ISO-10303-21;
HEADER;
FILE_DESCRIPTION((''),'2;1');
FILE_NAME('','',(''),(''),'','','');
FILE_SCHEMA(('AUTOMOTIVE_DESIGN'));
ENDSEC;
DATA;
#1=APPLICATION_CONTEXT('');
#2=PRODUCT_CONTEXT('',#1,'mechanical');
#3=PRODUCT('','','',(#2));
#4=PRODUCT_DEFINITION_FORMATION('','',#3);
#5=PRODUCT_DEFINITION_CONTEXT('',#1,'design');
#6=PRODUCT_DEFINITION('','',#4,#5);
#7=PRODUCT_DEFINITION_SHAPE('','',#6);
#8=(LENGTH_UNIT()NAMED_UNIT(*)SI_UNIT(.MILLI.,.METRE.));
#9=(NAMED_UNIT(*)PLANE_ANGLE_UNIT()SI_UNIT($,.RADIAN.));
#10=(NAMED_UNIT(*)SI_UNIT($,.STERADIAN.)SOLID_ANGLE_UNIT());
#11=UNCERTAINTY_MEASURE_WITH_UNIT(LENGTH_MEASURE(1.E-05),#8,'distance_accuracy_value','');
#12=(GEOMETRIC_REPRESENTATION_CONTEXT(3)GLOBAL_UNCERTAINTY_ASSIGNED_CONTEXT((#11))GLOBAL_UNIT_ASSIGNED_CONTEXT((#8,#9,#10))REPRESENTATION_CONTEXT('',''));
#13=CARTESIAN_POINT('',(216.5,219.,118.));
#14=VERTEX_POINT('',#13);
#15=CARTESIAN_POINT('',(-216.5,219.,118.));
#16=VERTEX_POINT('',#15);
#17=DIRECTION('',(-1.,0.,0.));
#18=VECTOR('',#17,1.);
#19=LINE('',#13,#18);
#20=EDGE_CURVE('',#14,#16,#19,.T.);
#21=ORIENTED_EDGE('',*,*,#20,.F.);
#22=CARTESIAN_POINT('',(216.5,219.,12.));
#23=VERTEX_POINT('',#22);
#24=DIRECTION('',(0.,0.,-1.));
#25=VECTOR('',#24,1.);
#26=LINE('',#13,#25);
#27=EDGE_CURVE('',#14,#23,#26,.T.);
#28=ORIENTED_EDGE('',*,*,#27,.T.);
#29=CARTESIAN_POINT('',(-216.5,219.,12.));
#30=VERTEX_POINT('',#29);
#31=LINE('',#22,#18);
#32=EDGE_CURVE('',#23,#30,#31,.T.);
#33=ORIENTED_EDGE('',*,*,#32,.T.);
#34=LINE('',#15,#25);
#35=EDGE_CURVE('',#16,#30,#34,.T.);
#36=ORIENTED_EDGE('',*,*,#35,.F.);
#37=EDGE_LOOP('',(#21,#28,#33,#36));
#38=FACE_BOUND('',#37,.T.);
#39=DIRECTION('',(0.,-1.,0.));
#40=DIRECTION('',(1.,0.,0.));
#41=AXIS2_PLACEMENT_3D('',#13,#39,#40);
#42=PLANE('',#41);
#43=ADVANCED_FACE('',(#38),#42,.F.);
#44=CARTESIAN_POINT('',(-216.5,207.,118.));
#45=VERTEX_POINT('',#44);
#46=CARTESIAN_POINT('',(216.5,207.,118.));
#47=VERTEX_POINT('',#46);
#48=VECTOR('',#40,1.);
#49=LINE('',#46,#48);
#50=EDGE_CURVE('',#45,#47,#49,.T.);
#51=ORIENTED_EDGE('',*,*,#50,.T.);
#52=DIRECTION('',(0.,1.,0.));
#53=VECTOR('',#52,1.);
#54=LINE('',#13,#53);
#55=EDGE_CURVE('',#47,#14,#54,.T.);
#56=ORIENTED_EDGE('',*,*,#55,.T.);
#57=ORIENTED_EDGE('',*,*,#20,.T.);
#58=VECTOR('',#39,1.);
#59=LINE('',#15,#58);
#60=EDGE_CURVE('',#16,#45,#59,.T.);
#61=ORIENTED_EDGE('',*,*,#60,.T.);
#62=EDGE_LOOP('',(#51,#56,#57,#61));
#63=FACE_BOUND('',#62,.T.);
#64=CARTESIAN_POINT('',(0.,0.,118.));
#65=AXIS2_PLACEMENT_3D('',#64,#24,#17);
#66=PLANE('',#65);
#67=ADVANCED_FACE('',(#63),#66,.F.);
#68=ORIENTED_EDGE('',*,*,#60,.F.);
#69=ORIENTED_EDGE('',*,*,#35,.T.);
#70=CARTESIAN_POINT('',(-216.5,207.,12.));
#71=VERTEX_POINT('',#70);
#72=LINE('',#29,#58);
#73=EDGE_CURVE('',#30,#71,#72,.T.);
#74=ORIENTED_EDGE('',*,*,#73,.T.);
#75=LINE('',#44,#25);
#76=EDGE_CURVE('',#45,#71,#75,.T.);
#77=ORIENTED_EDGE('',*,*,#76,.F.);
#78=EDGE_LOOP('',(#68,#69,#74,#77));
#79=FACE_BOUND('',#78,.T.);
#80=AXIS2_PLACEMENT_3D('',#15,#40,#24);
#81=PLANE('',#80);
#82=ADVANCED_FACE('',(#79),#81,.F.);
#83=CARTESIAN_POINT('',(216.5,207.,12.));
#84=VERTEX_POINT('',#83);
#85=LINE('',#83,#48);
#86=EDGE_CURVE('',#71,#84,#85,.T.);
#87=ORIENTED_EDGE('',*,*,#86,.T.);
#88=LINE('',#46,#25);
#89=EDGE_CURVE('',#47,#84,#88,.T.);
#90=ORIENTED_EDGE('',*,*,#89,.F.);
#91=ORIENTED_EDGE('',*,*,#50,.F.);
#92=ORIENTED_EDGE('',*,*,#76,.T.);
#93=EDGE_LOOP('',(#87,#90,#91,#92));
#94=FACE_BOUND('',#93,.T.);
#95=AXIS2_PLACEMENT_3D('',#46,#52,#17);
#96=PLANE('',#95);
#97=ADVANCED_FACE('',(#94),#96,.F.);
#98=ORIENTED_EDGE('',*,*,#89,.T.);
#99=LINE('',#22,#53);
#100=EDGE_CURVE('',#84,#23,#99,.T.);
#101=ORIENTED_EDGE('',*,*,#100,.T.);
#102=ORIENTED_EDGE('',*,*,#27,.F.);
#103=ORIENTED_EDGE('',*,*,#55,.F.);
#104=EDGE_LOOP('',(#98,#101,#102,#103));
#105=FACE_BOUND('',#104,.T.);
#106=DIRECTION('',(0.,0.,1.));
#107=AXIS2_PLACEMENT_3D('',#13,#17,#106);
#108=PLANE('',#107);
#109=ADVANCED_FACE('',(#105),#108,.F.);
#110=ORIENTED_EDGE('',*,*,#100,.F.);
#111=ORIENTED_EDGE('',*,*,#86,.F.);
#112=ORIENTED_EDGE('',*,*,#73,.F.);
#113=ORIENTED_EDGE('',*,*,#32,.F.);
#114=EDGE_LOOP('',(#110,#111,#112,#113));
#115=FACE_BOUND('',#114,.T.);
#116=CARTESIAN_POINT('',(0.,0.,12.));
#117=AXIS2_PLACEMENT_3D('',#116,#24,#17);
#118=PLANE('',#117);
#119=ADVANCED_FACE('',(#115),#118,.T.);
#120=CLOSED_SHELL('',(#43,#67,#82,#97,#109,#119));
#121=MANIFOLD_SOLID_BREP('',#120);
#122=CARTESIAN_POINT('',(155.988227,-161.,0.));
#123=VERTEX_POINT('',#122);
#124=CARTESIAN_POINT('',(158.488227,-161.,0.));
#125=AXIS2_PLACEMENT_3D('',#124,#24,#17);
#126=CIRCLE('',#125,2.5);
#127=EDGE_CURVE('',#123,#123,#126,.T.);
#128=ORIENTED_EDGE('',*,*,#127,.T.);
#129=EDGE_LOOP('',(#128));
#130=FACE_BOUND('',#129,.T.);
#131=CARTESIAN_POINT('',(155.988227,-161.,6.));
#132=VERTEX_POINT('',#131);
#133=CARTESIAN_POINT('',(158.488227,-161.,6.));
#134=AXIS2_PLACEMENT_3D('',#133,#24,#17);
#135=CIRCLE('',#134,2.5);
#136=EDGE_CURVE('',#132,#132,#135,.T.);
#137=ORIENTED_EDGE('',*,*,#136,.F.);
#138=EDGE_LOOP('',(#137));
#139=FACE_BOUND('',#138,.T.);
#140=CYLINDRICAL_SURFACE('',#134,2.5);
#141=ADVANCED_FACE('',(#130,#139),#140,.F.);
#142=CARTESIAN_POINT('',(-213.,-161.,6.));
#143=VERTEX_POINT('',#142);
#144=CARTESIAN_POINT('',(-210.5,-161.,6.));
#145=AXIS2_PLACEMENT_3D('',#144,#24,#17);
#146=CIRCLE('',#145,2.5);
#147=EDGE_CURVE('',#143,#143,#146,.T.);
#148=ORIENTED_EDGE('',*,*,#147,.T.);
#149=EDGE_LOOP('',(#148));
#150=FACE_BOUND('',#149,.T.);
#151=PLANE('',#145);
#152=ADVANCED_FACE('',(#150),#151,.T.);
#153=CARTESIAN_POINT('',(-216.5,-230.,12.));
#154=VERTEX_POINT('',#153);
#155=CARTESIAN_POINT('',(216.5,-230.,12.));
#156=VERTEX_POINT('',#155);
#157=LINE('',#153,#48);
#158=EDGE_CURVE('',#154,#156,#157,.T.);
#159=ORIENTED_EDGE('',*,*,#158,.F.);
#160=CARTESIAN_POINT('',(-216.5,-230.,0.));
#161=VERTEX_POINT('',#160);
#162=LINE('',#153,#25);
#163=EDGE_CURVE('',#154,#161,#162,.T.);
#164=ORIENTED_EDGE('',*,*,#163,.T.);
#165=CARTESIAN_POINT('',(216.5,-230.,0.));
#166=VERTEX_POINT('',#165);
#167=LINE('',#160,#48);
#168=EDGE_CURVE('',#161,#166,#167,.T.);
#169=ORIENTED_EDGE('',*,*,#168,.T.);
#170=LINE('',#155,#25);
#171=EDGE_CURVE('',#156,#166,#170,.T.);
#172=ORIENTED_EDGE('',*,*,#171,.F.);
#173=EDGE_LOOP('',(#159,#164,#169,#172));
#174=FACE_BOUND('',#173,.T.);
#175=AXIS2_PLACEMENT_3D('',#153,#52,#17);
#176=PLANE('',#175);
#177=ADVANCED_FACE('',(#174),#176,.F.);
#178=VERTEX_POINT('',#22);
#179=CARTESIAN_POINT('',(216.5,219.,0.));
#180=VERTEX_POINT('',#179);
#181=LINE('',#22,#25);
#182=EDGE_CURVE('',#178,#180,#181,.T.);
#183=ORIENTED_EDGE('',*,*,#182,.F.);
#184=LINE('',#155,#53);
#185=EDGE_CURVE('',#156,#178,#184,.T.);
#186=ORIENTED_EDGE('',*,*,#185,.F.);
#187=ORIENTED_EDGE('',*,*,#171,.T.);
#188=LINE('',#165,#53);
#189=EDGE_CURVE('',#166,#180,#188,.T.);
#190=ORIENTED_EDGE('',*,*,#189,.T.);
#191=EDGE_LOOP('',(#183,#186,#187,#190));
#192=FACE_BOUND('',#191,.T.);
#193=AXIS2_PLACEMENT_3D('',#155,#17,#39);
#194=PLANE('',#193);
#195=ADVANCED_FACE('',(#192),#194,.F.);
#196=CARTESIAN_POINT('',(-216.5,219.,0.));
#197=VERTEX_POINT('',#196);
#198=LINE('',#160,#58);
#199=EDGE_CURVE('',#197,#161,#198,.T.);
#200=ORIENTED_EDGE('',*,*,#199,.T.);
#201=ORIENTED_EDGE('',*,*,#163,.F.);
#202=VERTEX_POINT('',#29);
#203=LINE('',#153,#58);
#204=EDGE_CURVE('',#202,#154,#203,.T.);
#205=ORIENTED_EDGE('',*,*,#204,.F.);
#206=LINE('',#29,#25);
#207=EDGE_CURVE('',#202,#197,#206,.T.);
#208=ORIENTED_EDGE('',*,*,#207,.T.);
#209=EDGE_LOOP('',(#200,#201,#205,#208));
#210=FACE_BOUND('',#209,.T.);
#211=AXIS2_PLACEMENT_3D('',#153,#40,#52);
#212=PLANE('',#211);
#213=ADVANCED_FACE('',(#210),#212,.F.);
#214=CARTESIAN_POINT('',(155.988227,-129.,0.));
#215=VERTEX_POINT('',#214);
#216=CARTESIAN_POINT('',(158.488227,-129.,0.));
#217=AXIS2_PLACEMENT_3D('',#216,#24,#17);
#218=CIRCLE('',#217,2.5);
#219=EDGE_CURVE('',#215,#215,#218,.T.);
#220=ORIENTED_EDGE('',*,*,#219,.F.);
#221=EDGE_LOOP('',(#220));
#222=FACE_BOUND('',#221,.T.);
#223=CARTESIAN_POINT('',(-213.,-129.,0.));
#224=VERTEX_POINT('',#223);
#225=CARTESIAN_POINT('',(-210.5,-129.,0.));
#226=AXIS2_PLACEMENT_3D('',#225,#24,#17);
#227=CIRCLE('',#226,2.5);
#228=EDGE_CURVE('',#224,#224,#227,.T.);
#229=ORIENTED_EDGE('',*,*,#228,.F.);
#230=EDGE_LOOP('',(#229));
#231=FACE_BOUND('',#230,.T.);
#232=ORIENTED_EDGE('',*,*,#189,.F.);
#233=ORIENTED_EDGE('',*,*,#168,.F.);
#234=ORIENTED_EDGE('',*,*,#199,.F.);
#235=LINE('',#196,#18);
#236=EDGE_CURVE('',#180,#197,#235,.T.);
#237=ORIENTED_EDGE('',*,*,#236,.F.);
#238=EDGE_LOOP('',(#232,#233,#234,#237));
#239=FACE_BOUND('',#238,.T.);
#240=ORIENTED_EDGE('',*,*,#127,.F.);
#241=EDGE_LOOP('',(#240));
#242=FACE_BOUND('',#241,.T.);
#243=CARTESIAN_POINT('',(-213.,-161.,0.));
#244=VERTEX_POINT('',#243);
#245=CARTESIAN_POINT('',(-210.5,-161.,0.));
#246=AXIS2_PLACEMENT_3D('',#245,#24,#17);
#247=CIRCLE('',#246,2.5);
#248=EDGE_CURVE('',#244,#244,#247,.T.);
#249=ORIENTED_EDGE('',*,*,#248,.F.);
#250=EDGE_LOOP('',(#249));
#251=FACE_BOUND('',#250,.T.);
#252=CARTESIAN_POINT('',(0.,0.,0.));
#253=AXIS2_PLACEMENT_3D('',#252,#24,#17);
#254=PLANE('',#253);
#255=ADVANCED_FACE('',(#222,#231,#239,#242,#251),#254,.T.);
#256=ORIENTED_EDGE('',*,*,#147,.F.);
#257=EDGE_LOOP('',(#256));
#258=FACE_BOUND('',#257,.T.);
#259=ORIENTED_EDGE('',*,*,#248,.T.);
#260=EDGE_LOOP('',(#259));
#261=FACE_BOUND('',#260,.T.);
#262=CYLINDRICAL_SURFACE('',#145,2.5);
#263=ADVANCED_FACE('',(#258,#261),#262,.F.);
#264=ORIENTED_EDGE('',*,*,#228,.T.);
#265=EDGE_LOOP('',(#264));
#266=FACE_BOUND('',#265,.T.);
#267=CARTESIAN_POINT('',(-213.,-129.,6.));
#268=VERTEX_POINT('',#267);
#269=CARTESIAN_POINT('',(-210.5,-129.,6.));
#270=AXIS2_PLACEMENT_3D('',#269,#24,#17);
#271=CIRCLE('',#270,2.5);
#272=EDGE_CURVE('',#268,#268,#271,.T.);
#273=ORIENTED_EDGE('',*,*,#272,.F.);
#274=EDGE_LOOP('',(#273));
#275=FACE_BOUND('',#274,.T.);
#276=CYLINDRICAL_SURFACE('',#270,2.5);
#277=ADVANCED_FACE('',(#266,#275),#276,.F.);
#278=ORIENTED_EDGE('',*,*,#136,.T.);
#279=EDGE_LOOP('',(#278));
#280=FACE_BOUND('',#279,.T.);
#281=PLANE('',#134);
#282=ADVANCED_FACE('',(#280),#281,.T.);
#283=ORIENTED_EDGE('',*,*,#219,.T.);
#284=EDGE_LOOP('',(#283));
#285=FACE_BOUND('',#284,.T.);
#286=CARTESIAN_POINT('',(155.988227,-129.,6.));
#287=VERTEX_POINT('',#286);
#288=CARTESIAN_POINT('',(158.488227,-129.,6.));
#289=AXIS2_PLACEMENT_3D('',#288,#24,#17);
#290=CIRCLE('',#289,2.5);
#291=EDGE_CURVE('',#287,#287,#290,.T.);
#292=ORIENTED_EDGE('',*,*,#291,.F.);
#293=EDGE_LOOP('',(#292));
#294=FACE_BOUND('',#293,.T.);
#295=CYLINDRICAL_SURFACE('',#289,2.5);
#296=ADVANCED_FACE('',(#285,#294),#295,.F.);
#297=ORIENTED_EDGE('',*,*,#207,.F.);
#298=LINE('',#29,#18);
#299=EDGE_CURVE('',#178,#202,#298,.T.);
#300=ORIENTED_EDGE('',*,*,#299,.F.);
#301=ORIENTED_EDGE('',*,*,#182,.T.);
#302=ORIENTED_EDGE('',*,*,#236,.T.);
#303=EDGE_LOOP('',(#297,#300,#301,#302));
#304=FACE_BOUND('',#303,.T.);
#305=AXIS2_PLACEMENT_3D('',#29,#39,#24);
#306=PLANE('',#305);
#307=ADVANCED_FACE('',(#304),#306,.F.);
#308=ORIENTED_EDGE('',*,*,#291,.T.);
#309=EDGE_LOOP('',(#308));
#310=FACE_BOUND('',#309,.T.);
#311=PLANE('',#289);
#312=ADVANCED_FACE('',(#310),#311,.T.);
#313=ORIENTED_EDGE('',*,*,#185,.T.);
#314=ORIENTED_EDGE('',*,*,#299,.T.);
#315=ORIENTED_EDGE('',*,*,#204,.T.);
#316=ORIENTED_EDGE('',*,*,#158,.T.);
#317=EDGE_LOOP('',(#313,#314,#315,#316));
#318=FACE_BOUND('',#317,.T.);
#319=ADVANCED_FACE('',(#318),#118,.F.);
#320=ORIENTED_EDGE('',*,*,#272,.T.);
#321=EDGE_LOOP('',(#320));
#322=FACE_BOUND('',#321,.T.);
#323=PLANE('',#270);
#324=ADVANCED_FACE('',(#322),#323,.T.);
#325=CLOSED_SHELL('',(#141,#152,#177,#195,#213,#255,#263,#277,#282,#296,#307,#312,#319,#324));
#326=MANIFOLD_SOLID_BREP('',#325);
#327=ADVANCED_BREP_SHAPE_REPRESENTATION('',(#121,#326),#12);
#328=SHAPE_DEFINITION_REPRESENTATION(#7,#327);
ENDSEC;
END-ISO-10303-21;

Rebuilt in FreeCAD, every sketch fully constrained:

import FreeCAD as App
import Part
import Sketcher

V = App.Vector
Q = App.Units.Quantity

doc = App.newDocument("Part")
body = doc.addObject("PartDesign::Body", "Body")

# Sketch on XY plane
sketch1 = body.newObject("Sketcher::SketchObject", "Sketch")
sketch1.AttachmentSupport = (doc.getObject("XY_Plane"), [""])
sketch1.MapMode = "FlatFace"
sketch1.addGeometry([
    Part.LineSegment(V(-216.5, 219, 0), V(-216.5, -230, 0)),
    Part.LineSegment(V(-216.5, -230, 0), V(216.5, -230, 0)),
    Part.LineSegment(V(216.5, -230, 0), V(216.5, 219, 0)),
    Part.LineSegment(V(216.5, 219, 0), V(-216.5, 219, 0)),
], False)
sketch1.addConstraint([
    Sketcher.Constraint("Coincident", 0, 2, 1, 1),
    Sketcher.Constraint("Coincident", 1, 2, 2, 1),
    Sketcher.Constraint("Coincident", 2, 2, 3, 1),
    Sketcher.Constraint("Coincident", 3, 2, 0, 1),
    Sketcher.Constraint("Vertical", 0),
    Sketcher.Constraint("Horizontal", 1),
    Sketcher.Constraint("Vertical", 2),
    Sketcher.Constraint("Horizontal", 3),
    Sketcher.Constraint("DistanceX", 1, 1, 1, 2, Q("433 mm")),
    Sketcher.Constraint("DistanceY", 0, 2, 0, 1, Q("449 mm")),
    Sketcher.Constraint("DistanceY", 0, 2, -1, 1, Q("230 mm")),
    Sketcher.Constraint("DistanceX", 0, 2, -1, 1, Q("216.5 mm")),
])
pad1 = body.newObject("PartDesign::Pad", "Pad")
pad1.Profile = sketch1
pad1.Length = 12

# Sketch on XY plane
sketch2 = body.newObject("Sketcher::SketchObject", "Sketch001")
sketch2.AttachmentSupport = (doc.getObject("XY_Plane"), [""])
sketch2.MapMode = "FlatFace"
sketch2.addGeometry([
    Part.Circle(V(-210.5, -161, 0), V(0, 0, 1), 2.5),
    Part.Circle(V(-210.5, -129, 0), V(0, 0, 1), 2.5),
    Part.Circle(V(158.488227, -129, 0), V(0, 0, 1), 2.5),
    Part.Circle(V(158.488227, -161, 0), V(0, 0, 1), 2.5),
], False)
sketch2.addConstraint([
    Sketcher.Constraint("Equal", 0, 1),
    Sketcher.Constraint("Equal", 1, 2),
    Sketcher.Constraint("Equal", 2, 3),
    Sketcher.Constraint("Horizontal", 1, 3, 2, 3),
    Sketcher.Constraint("Horizontal", 0, 3, 3, 3),
    Sketcher.Constraint("Vertical", 0, 3, 1, 3),
    Sketcher.Constraint("Vertical", 2, 3, 3, 3),
    Sketcher.Constraint("Diameter", 0, Q("5 mm")),
    Sketcher.Constraint("DistanceY", 0, 3, -1, 1, Q("161 mm")),
    Sketcher.Constraint("DistanceY", 1, 3, -1, 1, Q("129 mm")),
    Sketcher.Constraint("DistanceX", 0, 3, -1, 1, Q("210.5 mm")),
    Sketcher.Constraint("DistanceX", -1, 1, 2, 3, Q("158.488227 mm")),
])
pocket1 = body.newObject("PartDesign::Pocket", "Pocket")
pocket1.Profile = sketch2
pocket1.Length = 6
pocket1.Reversed = True
body2 = doc.addObject("PartDesign::Body", "Body001")

# Sketch on XY plane
sketch3 = body2.newObject("Sketcher::SketchObject", "Sketch002")
sketch3.AttachmentSupport = (doc.getObject("XY_Plane001"), [""])
sketch3.MapMode = "FlatFace"
sketch3.AttachmentOffset = App.Placement(V(0, 0, 12), App.Rotation())
sketch3.addGeometry([
    Part.LineSegment(V(-216.5, 219, 0), V(-216.5, 207, 0)),
    Part.LineSegment(V(-216.5, 207, 0), V(216.5, 207, 0)),
    Part.LineSegment(V(216.5, 207, 0), V(216.5, 219, 0)),
    Part.LineSegment(V(216.5, 219, 0), V(-216.5, 219, 0)),
], False)
sketch3.addConstraint([
    Sketcher.Constraint("Coincident", 0, 2, 1, 1),
    Sketcher.Constraint("Coincident", 1, 2, 2, 1),
    Sketcher.Constraint("Coincident", 2, 2, 3, 1),
    Sketcher.Constraint("Coincident", 3, 2, 0, 1),
    Sketcher.Constraint("Vertical", 0),
    Sketcher.Constraint("Horizontal", 1),
    Sketcher.Constraint("Vertical", 2),
    Sketcher.Constraint("Horizontal", 3),
    Sketcher.Constraint("DistanceX", 1, 1, 1, 2, Q("433 mm")),
    Sketcher.Constraint("DistanceY", 0, 2, 0, 1, Q("12 mm")),
    Sketcher.Constraint("DistanceY", -1, 1, 0, 2, Q("207 mm")),
    Sketcher.Constraint("DistanceX", 0, 2, -1, 1, Q("216.5 mm")),
])
pad2 = body2.newObject("PartDesign::Pad", "Pad001")
pad2.Profile = sketch3
pad2.Length = 106

doc.recompute()
